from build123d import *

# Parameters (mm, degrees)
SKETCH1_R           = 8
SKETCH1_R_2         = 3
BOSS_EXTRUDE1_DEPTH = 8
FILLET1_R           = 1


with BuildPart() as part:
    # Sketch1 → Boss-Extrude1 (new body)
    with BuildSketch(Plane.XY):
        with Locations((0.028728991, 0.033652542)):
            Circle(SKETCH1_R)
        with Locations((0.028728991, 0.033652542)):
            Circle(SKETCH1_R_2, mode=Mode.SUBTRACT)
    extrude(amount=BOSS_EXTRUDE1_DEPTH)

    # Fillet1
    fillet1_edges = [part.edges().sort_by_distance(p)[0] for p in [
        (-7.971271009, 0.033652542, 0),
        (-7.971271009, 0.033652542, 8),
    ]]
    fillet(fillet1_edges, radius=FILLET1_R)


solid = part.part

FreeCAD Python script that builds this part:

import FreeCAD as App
import Part
import Sketcher


def edges_at(feature, points):
    """Names of the edges that pass closest to the given points."""
    edges = feature.Shape.Edges
    near = lambda p: min(range(len(edges)), key=lambda i: edges[i].distToShape(Part.Vertex(*p))[0])
    return sorted({f"Edge{near(p) + 1}" for p in points})

doc = App.newDocument("Part")
body = doc.addObject("PartDesign::Body", "Body")

sketch1 = doc.addObject("Sketcher::SketchObject", "Sketch")
body.addObject(sketch1)
sketch1.AttachmentSupport = (doc.XY_Plane, [""])
sketch1.MapMode = "FlatFace"
sketch1.addGeometry(Part.Circle(App.Vector(0, 0, 0), App.Vector(0, 0, 1), 8), False)
sketch1.addGeometry(Part.Circle(App.Vector(0, 0, 0), App.Vector(0, 0, 1), 3), False)
sketch1.addConstraint(Sketcher.Constraint("Coincident", 1, 3, 0, 3))
sketch1.addConstraint(Sketcher.Constraint("Diameter", 0, 16.0))
sketch1.addConstraint(Sketcher.Constraint("Diameter", 1, 6.0))
sketch1.addConstraint(Sketcher.Constraint("DistanceX", -1, 1, 0, 3, 0.028729))
sketch1.addConstraint(Sketcher.Constraint("DistanceY", -1, 1, 0, 3, 0.033653))
pad1 = doc.addObject("PartDesign::Pad", "Pad")
body.addObject(pad1)
pad1.Profile = sketch1
pad1.Length = 8
doc.recompute()

fillet = doc.addObject("PartDesign::Fillet", "Fillet")
body.addObject(fillet)
fillet.Base = (pad1, edges_at(pad1, [(-7.971, 0.034, 0), (-7.971, 0.034, 8)]))
fillet.Radius = 1

doc.recompute()
